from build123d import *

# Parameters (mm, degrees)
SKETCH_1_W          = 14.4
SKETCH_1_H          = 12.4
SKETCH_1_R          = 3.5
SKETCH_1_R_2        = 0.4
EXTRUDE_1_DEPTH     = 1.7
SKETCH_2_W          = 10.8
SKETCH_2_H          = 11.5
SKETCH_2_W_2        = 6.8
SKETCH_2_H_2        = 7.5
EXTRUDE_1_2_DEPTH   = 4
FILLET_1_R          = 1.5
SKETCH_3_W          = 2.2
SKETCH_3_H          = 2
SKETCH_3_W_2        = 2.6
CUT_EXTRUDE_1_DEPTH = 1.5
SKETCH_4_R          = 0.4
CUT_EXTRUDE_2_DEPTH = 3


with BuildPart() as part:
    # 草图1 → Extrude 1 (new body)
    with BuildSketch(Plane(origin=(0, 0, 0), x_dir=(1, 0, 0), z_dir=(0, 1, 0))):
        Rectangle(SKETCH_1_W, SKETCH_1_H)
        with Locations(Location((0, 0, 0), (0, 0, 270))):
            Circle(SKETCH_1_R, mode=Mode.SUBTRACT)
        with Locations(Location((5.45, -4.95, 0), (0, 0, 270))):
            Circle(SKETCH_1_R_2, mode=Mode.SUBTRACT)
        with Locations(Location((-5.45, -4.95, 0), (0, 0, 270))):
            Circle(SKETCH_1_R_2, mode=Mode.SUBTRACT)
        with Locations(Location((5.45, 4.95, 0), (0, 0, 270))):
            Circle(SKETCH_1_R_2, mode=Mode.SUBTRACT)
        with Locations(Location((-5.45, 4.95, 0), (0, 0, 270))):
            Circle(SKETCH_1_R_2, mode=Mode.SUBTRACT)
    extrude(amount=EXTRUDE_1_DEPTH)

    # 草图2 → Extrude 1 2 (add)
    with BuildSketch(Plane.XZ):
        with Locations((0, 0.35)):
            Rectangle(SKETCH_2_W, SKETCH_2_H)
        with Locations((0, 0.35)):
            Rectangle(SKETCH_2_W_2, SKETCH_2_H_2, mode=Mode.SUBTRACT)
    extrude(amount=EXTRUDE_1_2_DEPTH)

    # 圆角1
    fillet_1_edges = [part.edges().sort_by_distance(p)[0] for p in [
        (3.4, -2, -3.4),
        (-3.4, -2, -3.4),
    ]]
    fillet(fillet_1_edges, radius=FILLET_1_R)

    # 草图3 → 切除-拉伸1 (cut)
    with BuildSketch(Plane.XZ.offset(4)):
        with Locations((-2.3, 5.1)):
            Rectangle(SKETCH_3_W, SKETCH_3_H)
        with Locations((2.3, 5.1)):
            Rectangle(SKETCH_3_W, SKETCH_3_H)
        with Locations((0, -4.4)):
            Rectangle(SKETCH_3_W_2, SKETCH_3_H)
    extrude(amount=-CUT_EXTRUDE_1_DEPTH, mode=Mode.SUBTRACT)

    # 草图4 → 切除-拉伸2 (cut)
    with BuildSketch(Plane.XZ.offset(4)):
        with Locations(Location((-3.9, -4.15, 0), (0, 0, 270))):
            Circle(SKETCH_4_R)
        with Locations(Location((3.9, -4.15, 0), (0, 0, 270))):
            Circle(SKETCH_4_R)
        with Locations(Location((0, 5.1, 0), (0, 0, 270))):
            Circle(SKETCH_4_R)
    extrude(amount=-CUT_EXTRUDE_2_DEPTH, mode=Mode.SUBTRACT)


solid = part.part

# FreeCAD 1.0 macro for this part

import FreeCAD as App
import Part
import Sketcher

V = App.Vector
Q = App.Units.Quantity


def edges_at(feature, points):
    """Names of the edges that pass closest to the given points."""
    edges = feature.Shape.Edges
    near = lambda p: min(range(len(edges)), key=lambda i: edges[i].distToShape(Part.Vertex(*p))[0])
    return sorted({f"Edge{near(p) + 1}" for p in points})


def add_polygon(sketch, points):
    """Adds a closed chain of lines whose ends are joined by coincident constraints."""
    first, n = sketch.GeometryCount, len(points)
    for a, b in zip(points, points[1:] + points[:1]):
        sketch.addGeometry(Part.LineSegment(App.Vector(*a, 0), App.Vector(*b, 0)), False)
    for i in range(n):
        sketch.addConstraint(Sketcher.Constraint("Coincident", first + i, 2, first + (i + 1) % n, 1))

doc = App.newDocument("Part")
body = doc.addObject("PartDesign::Body", "Body")

# Sketch on XZ plane
sketch1 = doc.addObject("Sketcher::SketchObject", "Sketch")
body.addObject(sketch1)
sketch1.AttachmentSupport = (doc.XZ_Plane, [""])
sketch1.MapMode = "FlatFace"
add_polygon(sketch1, [(-7.2, -6.2), (-7.2, 6.2), (7.2, 6.2), (7.2, -6.2)])  # lines 0-3
sketch1.addGeometry(Part.Circle(V(-5.45, 4.95, 0), V(0, 0, 1), 0.4), False)  # 4
sketch1.addGeometry(Part.Circle(V(5.45, 4.95, 0), V(0, 0, 1), 0.4), False)  # 5
sketch1.addGeometry(Part.Circle(V(-5.45, -4.95, 0), V(0, 0, 1), 0.4), False)  # 6
sketch1.addGeometry(Part.Circle(V(0, 0, 0), V(0, 0, 1), 3.5), False)  # 7
sketch1.addGeometry(Part.Circle(V(5.45, -4.95, 0), V(0, 0, 1), 0.4), False)  # 8
sketch1.addConstraint([
    Sketcher.Constraint("Vertical", 0),
    Sketcher.Constraint("Horizontal", 1),
    Sketcher.Constraint("Vertical", 2),
    Sketcher.Constraint("Horizontal", 3),
    Sketcher.Constraint("Coincident", 7, 3, -1, 1),
    Sketcher.Constraint("Equal", 4, 5),
    Sketcher.Constraint("Equal", 5, 6),
    Sketcher.Constraint("Equal", 6, 8),
    Sketcher.Constraint("Symmetric", 5, 3, 6, 3, -1, 1),
    Sketcher.Constraint("Symmetric", 4, 3, 8, 3, -1, 1),
    Sketcher.Constraint("Symmetric", 0, 2, 2, 2, -1, 1),
    Sketcher.Constraint("Symmetric", 4, 3, 5, 3, -2),
    Sketcher.Constraint("Diameter", 7, Q("7 mm")),
    Sketcher.Constraint("Diameter", 4, Q("0.8 mm")),
    Sketcher.Constraint("DistanceX", 1, 1, 1, 2, Q("14.4 mm")),
    Sketcher.Constraint("DistanceY", 0, 1, 0, 2, Q("12.4 mm")),
    Sketcher.Constraint("DistanceX", 4, 3, 5, 3, Q("10.9 mm")),
    Sketcher.Constraint("DistanceY", 6, 3, 4, 3, Q("9.9 mm")),
])
pad1 = doc.addObject("PartDesign::Pad", "Pad")
body.addObject(pad1)
pad1.Profile = sketch1
pad1.Length = 1.7
pad1.Reversed = True

# Sketch on XZ plane
sketch2 = doc.addObject("Sketcher::SketchObject", "Sketch001")
body.addObject(sketch2)
sketch2.AttachmentSupport = (doc.XZ_Plane, [""])
sketch2.MapMode = "FlatFace"
add_polygon(sketch2, [(-5, 6), (-5, -5), (5, -5), (5, 6)])  # lines 0-3
add_polygon(sketch2, [(3, -3), (-3, -3), (-3, 4), (3, 4)])  # lines 4-7
sketch2.addConstraint([
    Sketcher.Constraint("Vertical", 0),
    Sketcher.Constraint("Horizontal", 1),
    Sketcher.Constraint("Vertical", 2),
    Sketcher.Constraint("Horizontal", 3),
    Sketcher.Constraint("Horizontal", 4),
    Sketcher.Constraint("Vertical", 5),
    Sketcher.Constraint("Horizontal", 6),
    Sketcher.Constraint("Vertical", 7),
    Sketcher.Constraint("DistanceX", 1, 1, 1, 2, Q("10.8 mm")),
    Sketcher.Constraint("DistanceX", 4, 2, 4, 1, Q("6.8 mm")),
    Sketcher.Constraint("DistanceY", 0, 2, 0, 1, Q("11.5 mm")),
    Sketcher.Constraint("DistanceY", 5, 1, 5, 2, Q("7.5 mm")),
    Sketcher.Constraint("DistanceX", 0, 2, 4, 2, Q("2 mm")),
    Sketcher.Constraint("DistanceY", 0, 2, 4, 2, Q("2 mm")),
    Sketcher.Constraint("DistanceX", 0, 2, -1, 1, Q("5.4 mm")),
    Sketcher.Constraint("DistanceY", 0, 2, -1, 1, Q("5.4 mm")),
])
pad2 = doc.addObject("PartDesign::Pad", "Pad001")
body.addObject(pad2)
pad2.Profile = sketch2
pad2.Length = 4
doc.recompute()

fillet = doc.addObject("PartDesign::Fillet", "Fillet")
body.addObject(fillet)
fillet.Base = (pad2, edges_at(pad2, [(3.4, -2, -3.4), (-3.4, -2, -3.4)]))
fillet.Radius = 1.5

# Sketch on XZ plane
sketch3 = doc.addObject("Sketcher::SketchObject", "Sketch002")
body.addObject(sketch3)
sketch3.AttachmentSupport = (doc.XZ_Plane, [""])
sketch3.MapMode = "FlatFace"
sketch3.AttachmentOffset = App.Placement(V(0, 0, 4), App.Rotation())
add_polygon(sketch3, [(-3.4, 6.1), (-3.4, 4.1), (-1.2, 4.1), (-1.2, 6.1)])  # lines 0-3
add_polygon(sketch3, [(1.2, 6.1), (1.2, 4.1), (3.4, 4.1), (3.4, 6.1)])  # lines 4-7
add_polygon(sketch3, [(-1.3, -3.4), (-1.3, -5.4), (1.3, -5.4), (1.3, -3.4)])  # lines 8-11
sketch3.addConstraint([
    Sketcher.Constraint("Vertical", 0),
    Sketcher.Constraint("Horizontal", 1),
    Sketcher.Constraint("Vertical", 2),
    Sketcher.Constraint("Horizontal", 3),
    Sketcher.Constraint("Vertical", 4),
    Sketcher.Constraint("Horizontal", 5),
    Sketcher.Constraint("Vertical", 6),
    Sketcher.Constraint("Horizontal", 7),
    Sketcher.Constraint("Vertical", 8),
    Sketcher.Constraint("Horizontal", 9),
    Sketcher.Constraint("Vertical", 10),
    Sketcher.Constraint("Horizontal", 11),
    Sketcher.Constraint("Symmetric", 1, 2, 4, 2, -2),
    Sketcher.Constraint("Symmetric", 3, 2, 6, 2, -2),
    Sketcher.Constraint("Equal", 6, 8),
    Sketcher.Constraint("DistanceY", 0, 2, 0, 1, Q("2 mm")),
    Sketcher.Constraint("DistanceX", 1, 1, 1, 2, Q("2.2 mm")),
    Sketcher.Constraint("DistanceX", 9, 1, 9, 2, Q("2.6 mm")),
    Sketcher.Constraint("DistanceX", 0, 2, -1, 1, Q("3.4 mm")),
    Sketcher.Constraint("DistanceY", -1, 1, 0, 2, Q("4.1 mm")),
    Sketcher.Constraint("DistanceX", 8, 2, -1, 1, Q("1.3 mm")),
    Sketcher.Constraint("DistanceY", 8, 2, -1, 1, Q("5.4 mm")),
])
pocket1 = doc.addObject("PartDesign::Pocket", "Pocket")
body.addObject(pocket1)
pocket1.Profile = sketch3
pocket1.Length = 1.5

# Sketch on XZ plane
sketch4 = doc.addObject("Sketcher::SketchObject", "Sketch003")
body.addObject(sketch4)
sketch4.AttachmentSupport = (doc.XZ_Plane, [""])
sketch4.MapMode = "FlatFace"
sketch4.AttachmentOffset = App.Placement(V(0, 0, 4), App.Rotation())
sketch4.addGeometry([
    Part.Circle(V(-3.9, -4.15, 0), V(0, 0, 1), 0.4),
    Part.Circle(V(3.9, -4.15, 0), V(0, 0, 1), 0.4),
    Part.Circle(V(0, 5.1, 0), V(0, 0, 1), 0.4),
], False)
sketch4.addConstraint([
    Sketcher.Constraint("Equal", 0, 1),
    Sketcher.Constraint("Equal", 1, 2),
    Sketcher.Constraint("Symmetric", 0, 3, 1, 3, -2),
    Sketcher.Constraint("PointOnObject", 2, 3, -2),
    Sketcher.Constraint("Diameter", 0, Q("0.8 mm")),
    Sketcher.Constraint("DistanceX", 0, 3, -1, 1, Q("3.9 mm")),
    Sketcher.Constraint("DistanceY", -1, 1, 2, 3, Q("5.1 mm")),
    Sketcher.Constraint("DistanceY", 0, 3, -1, 1, Q("4.15 mm")),
])
pocket2 = doc.addObject("PartDesign::Pocket", "Pocket001")
body.addObject(pocket2)
pocket2.Profile = sketch4
pocket2.Length = 3

doc.recompute()
